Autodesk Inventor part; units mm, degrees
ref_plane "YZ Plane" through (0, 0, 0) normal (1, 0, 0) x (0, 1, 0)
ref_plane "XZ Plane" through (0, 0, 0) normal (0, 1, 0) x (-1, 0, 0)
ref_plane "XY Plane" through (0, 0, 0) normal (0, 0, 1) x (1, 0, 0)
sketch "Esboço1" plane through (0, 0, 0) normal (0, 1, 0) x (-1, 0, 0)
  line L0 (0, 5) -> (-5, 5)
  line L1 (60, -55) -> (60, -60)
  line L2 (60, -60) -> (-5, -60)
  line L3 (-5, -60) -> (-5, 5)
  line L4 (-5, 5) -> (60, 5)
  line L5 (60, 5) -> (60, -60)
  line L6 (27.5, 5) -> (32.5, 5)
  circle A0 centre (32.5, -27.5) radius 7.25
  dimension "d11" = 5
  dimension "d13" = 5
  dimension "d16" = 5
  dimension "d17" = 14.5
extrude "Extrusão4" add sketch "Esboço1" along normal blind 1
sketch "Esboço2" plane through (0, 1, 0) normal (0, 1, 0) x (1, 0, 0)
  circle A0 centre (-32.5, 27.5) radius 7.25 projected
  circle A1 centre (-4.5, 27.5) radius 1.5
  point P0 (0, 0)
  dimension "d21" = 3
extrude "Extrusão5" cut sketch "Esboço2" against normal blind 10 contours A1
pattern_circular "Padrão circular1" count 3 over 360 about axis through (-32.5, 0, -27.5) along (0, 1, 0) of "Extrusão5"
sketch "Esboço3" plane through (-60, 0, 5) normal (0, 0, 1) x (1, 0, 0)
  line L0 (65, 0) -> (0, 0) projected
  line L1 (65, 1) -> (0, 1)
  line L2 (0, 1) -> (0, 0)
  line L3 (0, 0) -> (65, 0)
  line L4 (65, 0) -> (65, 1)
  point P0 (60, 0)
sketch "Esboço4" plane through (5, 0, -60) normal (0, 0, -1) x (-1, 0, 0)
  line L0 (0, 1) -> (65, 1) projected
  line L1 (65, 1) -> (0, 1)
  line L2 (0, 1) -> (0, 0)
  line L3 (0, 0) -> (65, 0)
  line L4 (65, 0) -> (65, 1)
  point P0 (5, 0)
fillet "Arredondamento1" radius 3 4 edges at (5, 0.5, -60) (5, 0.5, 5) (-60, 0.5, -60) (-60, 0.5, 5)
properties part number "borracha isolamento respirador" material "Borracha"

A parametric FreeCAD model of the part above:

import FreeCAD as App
import Part
import Sketcher
Q = App.Units.Quantity


def edges_at(feature, points):
    """Names of the edges that pass closest to the given points."""
    edges = feature.Shape.Edges
    near = lambda p: min(range(len(edges)), key=lambda i: edges[i].distToShape(Part.Vertex(*p))[0])
    return sorted({f"Edge{near(p) + 1}" for p in points})

doc = App.newDocument("Part")
body = doc.addObject("PartDesign::Body", "Body")

# Sketch on XZ plane
sketch1 = doc.addObject("Sketcher::SketchObject", "Sketch")
body.addObject(sketch1)
sketch1.AttachmentSupport = (doc.XZ_Plane, [""])
sketch1.MapMode = "FlatFace"
sketch1.addGeometry(Part.LineSegment(App.Vector(-60, 5, 0), App.Vector(5, 5, 0)), False)
sketch1.addGeometry(Part.LineSegment(App.Vector(5, 5, 0), App.Vector(5, -60, 0)), False)
sketch1.addGeometry(Part.LineSegment(App.Vector(5, -60, 0), App.Vector(-60, -60, 0)), False)
sketch1.addGeometry(Part.LineSegment(App.Vector(-60, -60, 0), App.Vector(-60, 5, 0)), False)
sketch1.addGeometry(Part.Circle(App.Vector(-32, -28, 0), App.Vector(0, 0, 1), 7), False)
sketch1.addConstraint(Sketcher.Constraint("Coincident", 0, 2, 1, 1))
sketch1.addConstraint(Sketcher.Constraint("Coincident", 1, 2, 2, 1))
sketch1.addConstraint(Sketcher.Constraint("Coincident", 2, 2, 3, 1))
sketch1.addConstraint(Sketcher.Constraint("Coincident", 3, 2, 0, 1))
sketch1.addConstraint(Sketcher.Constraint("Horizontal", 0))
sketch1.addConstraint(Sketcher.Constraint("Vertical", 1))
sketch1.addConstraint(Sketcher.Constraint("Horizontal", 2))
sketch1.addConstraint(Sketcher.Constraint("Vertical", 3))
sketch1.addConstraint(Sketcher.Constraint("Equal", 2, 1))
sketch1.addConstraint(Sketcher.Constraint("Diameter", 4, Q("14.5 mm")))
sketch1.addConstraint(Sketcher.Constraint("DistanceX", -1, 1, 0, 2, Q("5 mm")))
sketch1.addConstraint(Sketcher.Constraint("DistanceY", -1, 1, 0, 2, Q("5 mm")))
sketch1.addConstraint(Sketcher.Constraint("DistanceX", 0, 1, 0, 2, Q("65 mm")))
sketch1.addConstraint(Sketcher.Constraint("DistanceX", 4, 3, -1, 1, Q("32.5 mm")))
sketch1.addConstraint(Sketcher.Constraint("DistanceY", 4, 3, -1, 1, Q("27.5 mm")))
pad1 = doc.addObject("PartDesign::Pad", "Pad")
body.addObject(pad1)
pad1.Profile = sketch1
pad1.Length = 1
pad1.Reversed = True

# Sketch on XZ plane
sketch2 = doc.addObject("Sketcher::SketchObject", "Sketch001")
body.addObject(sketch2)
sketch2.AttachmentSupport = (doc.XZ_Plane, [""])
sketch2.MapMode = "FlatFace"
sketch2.AttachmentOffset = App.Placement(App.Vector(0, 0, -1), App.Rotation())
sketch2.addGeometry(Part.Circle(App.Vector(-4.5, -27.5, 0), App.Vector(0, 0, 1), 1.5), False)
sketch2.addConstraint(Sketcher.Constraint("Diameter", 0, Q("3 mm")))
sketch2.addConstraint(Sketcher.Constraint("DistanceX", 0, 3, -1, 1, Q("4.5 mm")))
sketch2.addConstraint(Sketcher.Constraint("DistanceY", 0, 3, -1, 1, Q("27.5 mm")))
pocket1 = doc.addObject("PartDesign::Pocket", "Pocket")
body.addObject(pocket1)
pocket1.Profile = sketch2
pocket1.Length = 10
pocket1.Reversed = True
doc.recompute()

datumline = doc.addObject("PartDesign::Line", "DatumLine")
body.addObject(datumline)
datumline.Placement = App.Placement(App.Vector(-32.5, 0, -27.5), App.Rotation(App.Vector(0, 0, 1), App.Vector(0, 1, 0)))
polarpattern = doc.addObject("PartDesign::PolarPattern", "PolarPattern")
body.addObject(polarpattern)
polarpattern.Originals = [pocket1]
polarpattern.Axis = (datumline, [""])
polarpattern.Angle = 360
polarpattern.Occurrences = 3
body.Tip = polarpattern
doc.recompute()

fillet = doc.addObject("PartDesign::Fillet", "Fillet")
body.addObject(fillet)
fillet.Base = (polarpattern, edges_at(polarpattern, [
    (5, 0.5, -60),
    (5, 0.5, 5),
    (-60, 0.5, -60),
    (-60, 0.5, 5),
]))
fillet.Radius = 3

doc.recompute()
